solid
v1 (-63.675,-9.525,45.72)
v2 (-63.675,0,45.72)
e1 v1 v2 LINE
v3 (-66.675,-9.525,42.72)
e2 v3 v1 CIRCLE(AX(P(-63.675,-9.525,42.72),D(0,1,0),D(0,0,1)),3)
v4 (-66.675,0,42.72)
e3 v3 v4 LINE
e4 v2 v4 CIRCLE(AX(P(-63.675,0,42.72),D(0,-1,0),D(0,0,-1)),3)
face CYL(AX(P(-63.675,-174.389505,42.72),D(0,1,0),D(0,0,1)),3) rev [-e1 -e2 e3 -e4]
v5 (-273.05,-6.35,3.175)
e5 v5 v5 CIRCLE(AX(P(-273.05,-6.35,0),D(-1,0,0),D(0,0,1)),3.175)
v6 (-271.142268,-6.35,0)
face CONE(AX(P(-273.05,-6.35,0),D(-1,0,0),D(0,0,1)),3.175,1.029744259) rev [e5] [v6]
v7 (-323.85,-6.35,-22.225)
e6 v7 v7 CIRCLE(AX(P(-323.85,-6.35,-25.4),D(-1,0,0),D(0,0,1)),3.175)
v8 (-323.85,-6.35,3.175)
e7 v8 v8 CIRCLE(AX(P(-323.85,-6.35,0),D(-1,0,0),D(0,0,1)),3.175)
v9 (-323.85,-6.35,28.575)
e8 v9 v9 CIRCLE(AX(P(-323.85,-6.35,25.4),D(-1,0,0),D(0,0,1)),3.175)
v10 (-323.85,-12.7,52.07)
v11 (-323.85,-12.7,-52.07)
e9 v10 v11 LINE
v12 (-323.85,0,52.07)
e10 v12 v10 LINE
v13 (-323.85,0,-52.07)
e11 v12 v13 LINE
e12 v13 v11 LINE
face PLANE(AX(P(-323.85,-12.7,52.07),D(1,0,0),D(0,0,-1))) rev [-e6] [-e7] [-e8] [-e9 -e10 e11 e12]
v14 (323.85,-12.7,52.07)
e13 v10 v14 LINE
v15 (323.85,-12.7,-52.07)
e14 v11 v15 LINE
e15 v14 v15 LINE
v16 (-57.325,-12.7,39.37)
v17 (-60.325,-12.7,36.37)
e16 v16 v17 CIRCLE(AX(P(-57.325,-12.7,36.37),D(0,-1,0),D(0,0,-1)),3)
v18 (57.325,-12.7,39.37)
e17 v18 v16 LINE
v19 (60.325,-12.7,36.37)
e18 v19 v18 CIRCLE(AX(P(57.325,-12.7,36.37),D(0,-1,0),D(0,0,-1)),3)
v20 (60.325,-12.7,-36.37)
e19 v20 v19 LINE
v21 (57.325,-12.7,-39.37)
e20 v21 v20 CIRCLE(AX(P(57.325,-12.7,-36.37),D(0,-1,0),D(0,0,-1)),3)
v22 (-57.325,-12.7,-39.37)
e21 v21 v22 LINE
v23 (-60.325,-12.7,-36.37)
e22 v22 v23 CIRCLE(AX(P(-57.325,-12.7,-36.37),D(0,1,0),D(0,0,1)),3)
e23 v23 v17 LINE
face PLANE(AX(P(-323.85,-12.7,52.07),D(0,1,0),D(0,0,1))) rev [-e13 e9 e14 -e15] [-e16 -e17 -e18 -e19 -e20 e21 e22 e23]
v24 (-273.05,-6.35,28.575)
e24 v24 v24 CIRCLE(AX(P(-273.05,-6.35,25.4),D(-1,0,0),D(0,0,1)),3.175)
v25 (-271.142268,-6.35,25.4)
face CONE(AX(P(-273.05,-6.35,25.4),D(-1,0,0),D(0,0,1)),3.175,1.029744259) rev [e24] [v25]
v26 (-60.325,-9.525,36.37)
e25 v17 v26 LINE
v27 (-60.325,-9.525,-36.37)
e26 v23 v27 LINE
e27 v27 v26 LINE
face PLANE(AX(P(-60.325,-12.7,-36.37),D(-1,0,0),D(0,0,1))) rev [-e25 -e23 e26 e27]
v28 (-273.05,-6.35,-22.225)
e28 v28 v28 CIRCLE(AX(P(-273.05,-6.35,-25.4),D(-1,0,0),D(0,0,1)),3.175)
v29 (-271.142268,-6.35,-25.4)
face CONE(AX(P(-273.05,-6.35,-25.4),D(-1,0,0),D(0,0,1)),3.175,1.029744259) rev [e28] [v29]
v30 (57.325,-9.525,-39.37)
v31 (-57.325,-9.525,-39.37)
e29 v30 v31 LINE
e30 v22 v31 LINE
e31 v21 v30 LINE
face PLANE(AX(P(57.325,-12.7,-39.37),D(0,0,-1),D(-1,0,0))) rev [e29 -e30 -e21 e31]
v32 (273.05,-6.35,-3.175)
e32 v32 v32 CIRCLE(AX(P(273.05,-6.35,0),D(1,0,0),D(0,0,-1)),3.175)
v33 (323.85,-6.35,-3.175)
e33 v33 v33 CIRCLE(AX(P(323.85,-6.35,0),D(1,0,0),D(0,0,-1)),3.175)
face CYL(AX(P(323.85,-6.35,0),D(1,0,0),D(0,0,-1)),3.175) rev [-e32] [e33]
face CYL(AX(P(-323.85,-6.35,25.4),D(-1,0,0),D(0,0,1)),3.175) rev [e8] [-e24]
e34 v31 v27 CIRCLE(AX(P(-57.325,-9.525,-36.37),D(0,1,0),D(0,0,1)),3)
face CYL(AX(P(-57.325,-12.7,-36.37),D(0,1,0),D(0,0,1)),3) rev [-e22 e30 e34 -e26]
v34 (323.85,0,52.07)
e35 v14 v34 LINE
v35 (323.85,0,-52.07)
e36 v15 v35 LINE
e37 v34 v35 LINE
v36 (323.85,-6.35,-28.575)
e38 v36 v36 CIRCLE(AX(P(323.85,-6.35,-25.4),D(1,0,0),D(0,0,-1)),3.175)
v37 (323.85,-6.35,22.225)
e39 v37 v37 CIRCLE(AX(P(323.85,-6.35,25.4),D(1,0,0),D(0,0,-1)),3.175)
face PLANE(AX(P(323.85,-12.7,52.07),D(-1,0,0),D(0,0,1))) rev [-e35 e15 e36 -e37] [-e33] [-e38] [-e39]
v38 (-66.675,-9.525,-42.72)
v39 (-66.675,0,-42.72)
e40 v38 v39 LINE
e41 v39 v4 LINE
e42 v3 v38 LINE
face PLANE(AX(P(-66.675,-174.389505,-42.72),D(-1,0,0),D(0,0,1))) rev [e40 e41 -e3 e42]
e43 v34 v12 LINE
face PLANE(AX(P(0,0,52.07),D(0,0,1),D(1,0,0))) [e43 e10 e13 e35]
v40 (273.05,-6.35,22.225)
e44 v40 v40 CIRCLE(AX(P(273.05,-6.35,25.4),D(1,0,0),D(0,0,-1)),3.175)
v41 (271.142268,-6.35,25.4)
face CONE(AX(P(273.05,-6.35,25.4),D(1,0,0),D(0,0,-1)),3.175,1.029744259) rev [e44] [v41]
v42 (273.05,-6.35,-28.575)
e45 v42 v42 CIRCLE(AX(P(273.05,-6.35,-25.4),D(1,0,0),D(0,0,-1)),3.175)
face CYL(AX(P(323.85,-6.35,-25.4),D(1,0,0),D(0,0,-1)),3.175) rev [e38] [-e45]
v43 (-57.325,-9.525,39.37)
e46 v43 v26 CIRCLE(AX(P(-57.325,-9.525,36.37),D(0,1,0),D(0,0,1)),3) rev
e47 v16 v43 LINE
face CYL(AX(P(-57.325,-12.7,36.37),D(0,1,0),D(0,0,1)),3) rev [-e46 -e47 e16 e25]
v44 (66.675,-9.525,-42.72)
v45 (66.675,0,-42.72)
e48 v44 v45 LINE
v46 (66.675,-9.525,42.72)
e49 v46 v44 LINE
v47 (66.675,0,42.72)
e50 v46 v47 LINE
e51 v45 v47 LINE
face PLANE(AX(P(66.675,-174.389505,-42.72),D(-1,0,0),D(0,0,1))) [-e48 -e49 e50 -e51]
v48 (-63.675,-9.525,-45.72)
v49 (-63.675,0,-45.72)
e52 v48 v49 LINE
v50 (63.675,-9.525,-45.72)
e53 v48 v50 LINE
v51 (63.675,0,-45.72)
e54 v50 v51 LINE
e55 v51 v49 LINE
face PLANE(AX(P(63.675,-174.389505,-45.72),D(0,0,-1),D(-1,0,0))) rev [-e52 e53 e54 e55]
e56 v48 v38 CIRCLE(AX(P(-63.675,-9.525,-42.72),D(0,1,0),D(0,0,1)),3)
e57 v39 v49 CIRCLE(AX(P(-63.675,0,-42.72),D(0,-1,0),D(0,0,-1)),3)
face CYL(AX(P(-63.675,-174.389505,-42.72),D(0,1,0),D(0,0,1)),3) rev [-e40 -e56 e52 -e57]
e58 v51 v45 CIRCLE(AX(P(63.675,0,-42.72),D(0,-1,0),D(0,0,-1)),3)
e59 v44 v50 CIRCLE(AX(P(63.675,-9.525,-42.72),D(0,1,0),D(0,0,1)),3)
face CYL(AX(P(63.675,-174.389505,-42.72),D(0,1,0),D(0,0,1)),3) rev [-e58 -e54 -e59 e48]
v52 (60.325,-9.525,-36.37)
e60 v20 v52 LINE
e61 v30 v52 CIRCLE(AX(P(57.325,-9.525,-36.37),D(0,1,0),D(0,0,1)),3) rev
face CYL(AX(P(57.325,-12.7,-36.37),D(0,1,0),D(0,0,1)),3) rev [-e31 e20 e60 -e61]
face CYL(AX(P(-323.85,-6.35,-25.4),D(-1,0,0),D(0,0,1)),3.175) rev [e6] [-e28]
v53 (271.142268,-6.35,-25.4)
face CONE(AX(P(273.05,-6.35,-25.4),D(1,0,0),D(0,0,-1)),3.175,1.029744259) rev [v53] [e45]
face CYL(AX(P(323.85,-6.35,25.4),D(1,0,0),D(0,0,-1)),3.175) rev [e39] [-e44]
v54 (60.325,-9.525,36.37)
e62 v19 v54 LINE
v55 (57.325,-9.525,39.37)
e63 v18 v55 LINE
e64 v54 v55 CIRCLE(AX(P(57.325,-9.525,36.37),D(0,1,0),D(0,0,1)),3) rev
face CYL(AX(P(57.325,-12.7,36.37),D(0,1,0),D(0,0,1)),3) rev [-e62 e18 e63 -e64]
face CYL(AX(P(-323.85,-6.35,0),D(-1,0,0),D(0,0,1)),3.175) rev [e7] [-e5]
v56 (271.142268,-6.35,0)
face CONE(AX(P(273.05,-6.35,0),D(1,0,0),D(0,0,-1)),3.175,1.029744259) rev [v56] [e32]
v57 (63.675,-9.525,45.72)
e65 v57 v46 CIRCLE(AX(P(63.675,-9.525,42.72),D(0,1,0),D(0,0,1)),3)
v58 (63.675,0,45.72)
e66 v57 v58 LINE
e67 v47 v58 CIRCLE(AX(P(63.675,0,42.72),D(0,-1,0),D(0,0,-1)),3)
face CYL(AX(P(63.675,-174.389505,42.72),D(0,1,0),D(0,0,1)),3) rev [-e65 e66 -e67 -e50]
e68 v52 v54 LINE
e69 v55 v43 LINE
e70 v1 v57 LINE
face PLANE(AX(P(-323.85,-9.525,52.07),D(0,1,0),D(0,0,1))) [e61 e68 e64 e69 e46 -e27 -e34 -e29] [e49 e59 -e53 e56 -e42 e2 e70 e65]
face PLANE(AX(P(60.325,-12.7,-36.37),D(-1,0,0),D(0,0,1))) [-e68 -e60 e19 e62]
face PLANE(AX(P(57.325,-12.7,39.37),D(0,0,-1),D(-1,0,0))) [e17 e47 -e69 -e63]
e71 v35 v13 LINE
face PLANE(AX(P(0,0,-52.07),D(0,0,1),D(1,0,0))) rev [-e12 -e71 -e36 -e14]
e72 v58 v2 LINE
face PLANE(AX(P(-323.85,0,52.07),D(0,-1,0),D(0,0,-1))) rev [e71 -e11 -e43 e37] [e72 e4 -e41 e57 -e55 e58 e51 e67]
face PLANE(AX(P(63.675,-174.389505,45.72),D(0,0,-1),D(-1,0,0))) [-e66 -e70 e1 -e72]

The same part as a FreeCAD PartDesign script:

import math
import FreeCAD as App
import Part
import Sketcher

V = App.Vector
Q = App.Units.Quantity


def add_polygon(sketch, points):
    """Adds a closed chain of lines whose ends are joined by coincident constraints."""
    first, n = sketch.GeometryCount, len(points)
    for a, b in zip(points, points[1:] + points[:1]):
        sketch.addGeometry(Part.LineSegment(App.Vector(*a, 0), App.Vector(*b, 0)), False)
    for i in range(n):
        sketch.addConstraint(Sketcher.Constraint("Coincident", first + i, 2, first + (i + 1) % n, 1))

doc = App.newDocument("Part")
body = doc.addObject("PartDesign::Body", "Body")

# Sketch on XY plane
sketch1 = doc.addObject("Sketcher::SketchObject", "Sketch")
body.addObject(sketch1)
sketch1.AttachmentSupport = (doc.XY_Plane, [""])
sketch1.MapMode = "FlatFace"
add_polygon(sketch1, [(-324, 0), (-324, -13), (324, -13), (324, 0)])  # lines 0-3
sketch1.addConstraint([
    Sketcher.Constraint("Vertical", 0),
    Sketcher.Constraint("Horizontal", 1),
    Sketcher.Constraint("Vertical", 2),
    Sketcher.Constraint("Horizontal", 3),
    Sketcher.Constraint("Symmetric", 2, 2, 3, 2, -1, 1),
    Sketcher.Constraint("DistanceX", 1, 1, 1, 2, Q("25.5 in")),
    Sketcher.Constraint("DistanceY", 0, 2, 0, 1, Q("0.5 in")),
])
pad1 = doc.addObject("PartDesign::Pad", "Pad")
body.addObject(pad1)
pad1.Profile = sketch1
pad1.Length = Q("4.1 in")
pad1.Midplane = True

# Sketch on XZ plane
sketch2 = doc.addObject("Sketcher::SketchObject", "Sketch001")
body.addObject(sketch2)
sketch2.AttachmentSupport = (doc.XZ_Plane, [""])
sketch2.MapMode = "FlatFace"
sketch2.addGeometry([
    Part.LineSegment(V(63.7, -45.7, 0), V(-63.7, -45.7, 0)),  # 0
    Part.ArcOfCircle(Part.Circle(V(-63.7, -42.7, 0), V(0, 0, 1), 3), math.radians(180), math.radians(270)),  # 1
    Part.LineSegment(V(-66.7, -42.7, 0), V(-66.7, 42.7, 0)),  # 2
    Part.ArcOfCircle(Part.Circle(V(-63.7, 42.7, 0), V(0, 0, 1), 3), math.radians(90), math.radians(180)),  # 3
    Part.LineSegment(V(-63.7, 45.7, 0), V(63.7, 45.7, 0)),  # 4
    Part.ArcOfCircle(Part.Circle(V(63.7, 42.7, 0), V(0, 0, 1), 3), math.radians(0), math.radians(90)),  # 5
    Part.LineSegment(V(66.7, 42.7, 0), V(66.7, -42.7, 0)),  # 6
    Part.ArcOfCircle(Part.Circle(V(63.7, -42.7, 0), V(0, 0, 1), 3), math.radians(-90), math.radians(0)),  # 7
], False)
sketch2.addConstraint([
    Sketcher.Constraint("Tangent", 0, 2, 1, 2),
    Sketcher.Constraint("Tangent", 1, 1, 2, 1),
    Sketcher.Constraint("Tangent", 2, 2, 3, 2),
    Sketcher.Constraint("Tangent", 3, 1, 4, 1),
    Sketcher.Constraint("Tangent", 4, 2, 5, 2),
    Sketcher.Constraint("Tangent", 5, 1, 6, 1),
    Sketcher.Constraint("Tangent", 6, 2, 7, 2),
    Sketcher.Constraint("Tangent", 7, 1, 0, 1),
    Sketcher.Constraint("Horizontal", 0),
    Sketcher.Constraint("Vertical", 2),
    Sketcher.Constraint("Horizontal", 4),
    Sketcher.Constraint("Vertical", 6),
    Sketcher.Constraint("Equal", 1, 3),
    Sketcher.Constraint("Equal", 3, 5),
    Sketcher.Constraint("Equal", 5, 7),
    Sketcher.Constraint("Symmetric", 1, 3, 5, 3, -1, 1),
    Sketcher.Constraint("DistanceY", 0, 2, -1, 1, Q("1.8 in")),
    Sketcher.Constraint("Radius", 1, Q("3 mm")),
    Sketcher.Constraint("DistanceX", 1, 1, -1, 1, Q("2.625 in")),
])
pocket1 = doc.addObject("PartDesign::Pocket", "Pocket")
body.addObject(pocket1)
pocket1.Profile = sketch2
pocket1.Length = Q("0.375 in")
pocket1.Reversed = True

# Sketch on XZ plane
sketch3 = doc.addObject("Sketcher::SketchObject", "Sketch002")
body.addObject(sketch3)
sketch3.AttachmentSupport = (doc.XZ_Plane, [""])
sketch3.MapMode = "FlatFace"
sketch3.AttachmentOffset = App.Placement(V(0, 0, 0.25 * 25.4), App.Rotation())
add_polygon(sketch3, [(-271.1, -25.4), (-323.9, -25.4), (-323.9, -22.2), (-273.1, -22.2)])  # lines 0-3
sketch3.addGeometry(Part.LineSegment(V(-323.9, -25.4, 0), V(-271.1, -25.4, 0)), True)  # axis
sketch3.addConstraint([
    Sketcher.Constraint("Horizontal", 0),
    Sketcher.Constraint("Vertical", 1),
    Sketcher.Constraint("Horizontal", 2),
    Sketcher.Constraint("Horizontal", 4),
    Sketcher.Constraint("Coincident", 4, 1, 0, 2),
    Sketcher.Constraint("Equal", 0, 4),
    Sketcher.Constraint("DistanceX", 2, 1, 2, 2, Q("2 in")),
    Sketcher.Constraint("DistanceY", 0, 2, -1, 1, Q("1 in")),
    Sketcher.Constraint("Angle", 3, Q("-59 deg")),
    Sketcher.Constraint("DistanceY", 1, 1, 1, 2, Q("0.125 in")),
    Sketcher.Constraint("DistanceX", 0, 2, -1, 1, Q("12.75 in")),
])
groove = doc.addObject("PartDesign::Groove", "Groove")
body.addObject(groove)
groove.Profile = sketch3
groove.ReferenceAxis = (sketch3, ["Axis0"])
groove.Angle = 360
doc.recompute()

linearpattern = doc.addObject("PartDesign::LinearPattern", "LinearPattern")
body.addObject(linearpattern)
linearpattern.Originals = [groove]
linearpattern.Direction = (doc.Z_Axis, [""])
linearpattern.Mode = "offset"
linearpattern.Offset = Q("1 in")
linearpattern.Occurrences = 2
body.Tip = linearpattern
doc.recompute()

linearpattern2 = doc.addObject("PartDesign::LinearPattern", "LinearPattern001")
body.addObject(linearpattern2)
linearpattern2.Originals = [groove]
linearpattern2.Direction = (doc.Z_Axis, [""])
linearpattern2.Mode = "offset"
linearpattern2.Offset = Q("2 in")
linearpattern2.Occurrences = 2
body.Tip = linearpattern2
doc.recompute()

mirrored = doc.addObject("PartDesign::Mirrored", "Mirrored")
body.addObject(mirrored)
mirrored.Originals = [groove]
mirrored.MirrorPlane = (doc.YZ_Plane, [""])
body.Tip = mirrored

# Sketch on XZ plane
sketch4 = doc.addObject("Sketcher::SketchObject", "Sketch003")
body.addObject(sketch4)
sketch4.AttachmentSupport = (doc.XZ_Plane, [""])
sketch4.MapMode = "FlatFace"
sketch4.AttachmentOffset = App.Placement(V(0, 0, 0.25 * 25.4), App.Rotation())
add_polygon(sketch4, [(323.9, 0), (271.1, 0), (273.1, 3.2), (323.9, 3.2)])  # lines 0-3
sketch4.addConstraint([
    Sketcher.Constraint("Horizontal", 0),
    Sketcher.Constraint("Horizontal", 2),
    Sketcher.Constraint("Vertical", 3),
    Sketcher.Constraint("PointOnObject", 0, 2, -1),
    Sketcher.Constraint("DistanceX", 2, 1, 2, 2, Q("2 in")),
    Sketcher.Constraint("Angle", 1, Q("59 deg")),
    Sketcher.Constraint("DistanceY", 3, 2, 3, 1, Q("0.125 in")),
    Sketcher.Constraint("DistanceX", -1, 1, 1, 2, Q("10.75 in")),
])
groove2 = doc.addObject("PartDesign::Groove", "Groove001")
body.addObject(groove2)
groove2.Profile = sketch4
groove2.ReferenceAxis = (sketch4, ["H_Axis"])
groove2.Angle = 360

# Sketch on XZ plane
sketch5 = doc.addObject("Sketcher::SketchObject", "Sketch004")
body.addObject(sketch5)
sketch5.AttachmentSupport = (doc.XZ_Plane, [""])
sketch5.MapMode = "FlatFace"
sketch5.AttachmentOffset = App.Placement(V(0, 0, 0.25 * 25.4), App.Rotation())
add_polygon(sketch5, [(323.9, 25.4), (271.1, 25.4), (273.1, 28.6), (323.9, 28.6)])  # lines 0-3
sketch5.addGeometry(Part.LineSegment(V(271.1, 25.4, 0), V(323.9, 25.4, 0)), True)  # axis
sketch5.addConstraint([
    Sketcher.Constraint("Horizontal", 0),
    Sketcher.Constraint("Horizontal", 2),
    Sketcher.Constraint("Vertical", 3),
    Sketcher.Constraint("Horizontal", 4),
    Sketcher.Constraint("Coincident", 4, 1, 0, 2),
    Sketcher.Constraint("Vertical", 2, 2, 4, 2),
    Sketcher.Constraint("DistanceX", 2, 1, 2, 2, Q("2 in")),
    Sketcher.Constraint("DistanceY", -1, 1, 0, 2, Q("1 in")),
    Sketcher.Constraint("Angle", 1, Q("59 deg")),
    Sketcher.Constraint("DistanceY", 3, 2, 3, 1, Q("0.125 in")),
    Sketcher.Constraint("DistanceX", -1, 1, 1, 2, Q("10.75 in")),
])
groove3 = doc.addObject("PartDesign::Groove", "Groove002")
body.addObject(groove3)
groove3.Profile = sketch5
groove3.ReferenceAxis = (sketch5, ["Axis0"])
groove3.Angle = 360

# Sketch on XZ plane
sketch6 = doc.addObject("Sketcher::SketchObject", "Sketch005")
body.addObject(sketch6)
sketch6.AttachmentSupport = (doc.XZ_Plane, [""])
sketch6.MapMode = "FlatFace"
sketch6.addGeometry([
    Part.LineSegment(V(57.3, -39.4, 0), V(-57.3, -39.4, 0)),  # 0
    Part.ArcOfCircle(Part.Circle(V(-57.3, -36.4, 0), V(0, 0, 1), 3), math.radians(180), math.radians(270)),  # 1
    Part.LineSegment(V(-60.3, -36.4, 0), V(-60.3, 36.4, 0)),  # 2
    Part.ArcOfCircle(Part.Circle(V(-57.3, 36.4, 0), V(0, 0, 1), 3), math.radians(90), math.radians(180)),  # 3
    Part.LineSegment(V(-57.3, 39.4, 0), V(57.3, 39.4, 0)),  # 4
    Part.ArcOfCircle(Part.Circle(V(57.3, 36.4, 0), V(0, 0, 1), 3), math.radians(0), math.radians(90)),  # 5
    Part.LineSegment(V(60.3, 36.4, 0), V(60.3, -36.4, 0)),  # 6
    Part.ArcOfCircle(Part.Circle(V(57.3, -36.4, 0), V(0, 0, 1), 3), math.radians(-90), math.radians(0)),  # 7
], False)
sketch6.addConstraint([
    Sketcher.Constraint("Tangent", 0, 2, 1, 2),
    Sketcher.Constraint("Tangent", 1, 1, 2, 1),
    Sketcher.Constraint("Tangent", 2, 2, 3, 2),
    Sketcher.Constraint("Tangent", 3, 1, 4, 1),
    Sketcher.Constraint("Tangent", 4, 2, 5, 2),
    Sketcher.Constraint("Tangent", 5, 1, 6, 1),
    Sketcher.Constraint("Tangent", 6, 2, 7, 2),
    Sketcher.Constraint("Tangent", 7, 1, 0, 1),
    Sketcher.Constraint("Horizontal", 0),
    Sketcher.Constraint("Vertical", 2),
    Sketcher.Constraint("Horizontal", 4),
    Sketcher.Constraint("Vertical", 6),
    Sketcher.Constraint("Equal", 1, 3),
    Sketcher.Constraint("Equal", 3, 5),
    Sketcher.Constraint("Equal", 5, 7),
    Sketcher.Constraint("Symmetric", 1, 3, 5, 3, -1, 1),
    Sketcher.Constraint("DistanceY", 0, 2, 3, 1, Q("3.1 in")),
    Sketcher.Constraint("Radius", 1, Q("3 mm")),
    Sketcher.Constraint("DistanceX", 1, 1, -1, 1, Q("2.375 in")),
])
pocket2 = doc.addObject("PartDesign::Pocket", "Pocket001")
body.addObject(pocket2)
pocket2.Profile = sketch6
pocket2.Type = "ThroughAll"
pocket2.Reversed = True

doc.recompute()
